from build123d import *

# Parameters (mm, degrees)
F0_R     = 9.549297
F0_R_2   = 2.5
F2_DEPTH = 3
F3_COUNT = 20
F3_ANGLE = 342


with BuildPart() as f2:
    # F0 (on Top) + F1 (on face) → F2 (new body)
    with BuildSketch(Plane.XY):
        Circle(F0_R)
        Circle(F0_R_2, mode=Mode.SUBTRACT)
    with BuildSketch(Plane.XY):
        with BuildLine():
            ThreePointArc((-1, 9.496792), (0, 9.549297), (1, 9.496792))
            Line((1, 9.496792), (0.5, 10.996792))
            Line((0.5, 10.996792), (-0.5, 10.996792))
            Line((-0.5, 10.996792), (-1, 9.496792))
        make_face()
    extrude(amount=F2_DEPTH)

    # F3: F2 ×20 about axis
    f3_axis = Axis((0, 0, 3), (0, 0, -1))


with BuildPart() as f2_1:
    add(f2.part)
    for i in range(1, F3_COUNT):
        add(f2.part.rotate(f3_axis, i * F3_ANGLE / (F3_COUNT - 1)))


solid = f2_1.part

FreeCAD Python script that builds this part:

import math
import FreeCAD as App
import Part
import Sketcher

V = App.Vector
Q = App.Units.Quantity

doc = App.newDocument("Part")
params = doc.addObject("Spreadsheet::Sheet", "Params")
for row, (alias, value) in enumerate([
    ("sketch1_diameter", "5 mm"),
    ("sketch1_width", "1 mm"),
    ("pad1_length", "3 mm"),
], start=1):
    params.set(f"A{row}", alias)
    params.set(f"B{row}", "=" + value)
    params.setAlias(f"B{row}", alias)

body = doc.addObject("PartDesign::Body", "Body")

# Sketch on XY plane
sketch1 = body.newObject("Sketcher::SketchObject", "Sketch")
sketch1.AttachmentSupport = (doc.getObject("XY_Plane"), [""])
sketch1.MapMode = "FlatFace"
sketch1.addGeometry([
    Part.ArcOfCircle(Part.Circle(V(0, 0, 0), V(0, 0, 1), 9.5), math.radians(96), math.radians(444)),  # 0
    Part.LineSegment(V(1, 9.5, 0), V(0.5, 11, 0)),  # 1
    Part.LineSegment(V(0.5, 11, 0), V(-0.5, 11, 0)),  # 2
    Part.LineSegment(V(-0.5, 11, 0), V(-1, 9.5, 0)),  # 3
    Part.Circle(V(0, 0, 0), V(0, 0, 1), 2.5),  # 4
], False)
sketch1.addConstraint([
    Sketcher.Constraint("Coincident", 0, 2, 1, 1),
    Sketcher.Constraint("Coincident", 1, 2, 2, 1),
    Sketcher.Constraint("Coincident", 2, 2, 3, 1),
    Sketcher.Constraint("Coincident", 3, 2, 0, 1),
    Sketcher.Constraint("Horizontal", 2),
    Sketcher.Constraint("Coincident", 0, 3, -1, 1),
    Sketcher.Constraint("Coincident", 4, 3, -1, 1),
    Sketcher.Constraint("Horizontal", 0, 2, 3, 2),
    Sketcher.Constraint("Equal", 1, 3),
    Sketcher.Constraint("Diameter", 4, Q("5 mm")),
    Sketcher.Constraint("DistanceX", 2, 2, 2, 1, Q("1 mm")),
    Sketcher.Constraint("DistanceX", -1, 1, 0, 2, Q("1 mm")),
    Sketcher.Constraint("DistanceY", 0, 2, 1, 2, Q("1.499999 mm")),
    Sketcher.Constraint("Radius", 0, Q("9.549297 mm")),
])
sketch1.setExpression("Constraints[9]", "Params.sketch1_diameter")
sketch1.setExpression("Constraints[10]", "Params.sketch1_width")
pad1 = body.newObject("PartDesign::Pad", "Pad")
pad1.Profile = sketch1
pad1.setExpression("Length", "Params.pad1_length")
body2 = doc.addObject("PartDesign::Body", "Body001")
doc.recompute()

body2.BaseFeature = body
doc.recompute()

body3 = doc.addObject("PartDesign::Body", "Body002")
body3.BaseFeature = body
body3.Placement = App.Placement(V(0, 0, 0), App.Rotation(V(0, 0, -1), 18))
boolean = body2.newObject("PartDesign::Boolean", "Boolean")
boolean.Type = "Fuse"
boolean.addObjects([body3])
doc.recompute()

body4 = doc.addObject("PartDesign::Body", "Body003")
body4.BaseFeature = body
body4.Placement = App.Placement(V(0, 0, 0), App.Rotation(V(0, 0, -1), 36))
boolean2 = body2.newObject("PartDesign::Boolean", "Boolean001")
boolean2.Type = "Fuse"
boolean2.addObjects([body4])
doc.recompute()

body5 = doc.addObject("PartDesign::Body", "Body004")
body5.BaseFeature = body
body5.Placement = App.Placement(V(0, 0, 0), App.Rotation(V(0, 0, -1), 54))
boolean3 = body2.newObject("PartDesign::Boolean", "Boolean002")
boolean3.Type = "Fuse"
boolean3.addObjects([body5])
doc.recompute()

body6 = doc.addObject("PartDesign::Body", "Body005")
body6.BaseFeature = body
body6.Placement = App.Placement(V(0, 0, 0), App.Rotation(V(0, 0, -1), 72))
boolean4 = body2.newObject("PartDesign::Boolean", "Boolean003")
boolean4.Type = "Fuse"
boolean4.addObjects([body6])
doc.recompute()

body7 = doc.addObject("PartDesign::Body", "Body006")
body7.BaseFeature = body
body7.Placement = App.Placement(V(0, 0, 0), App.Rotation(V(0, 0, -1), 90))
boolean5 = body2.newObject("PartDesign::Boolean", "Boolean004")
boolean5.Type = "Fuse"
boolean5.addObjects([body7])
doc.recompute()

body8 = doc.addObject("PartDesign::Body", "Body007")
body8.BaseFeature = body
body8.Placement = App.Placement(V(0, 0, 0), App.Rotation(V(0, 0, -1), 108))
boolean6 = body2.newObject("PartDesign::Boolean", "Boolean005")
boolean6.Type = "Fuse"
boolean6.addObjects([body8])
doc.recompute()

body9 = doc.addObject("PartDesign::Body", "Body008")
body9.BaseFeature = body
body9.Placement = App.Placement(V(0, 0, 0), App.Rotation(V(0, 0, -1), 126))
boolean7 = body2.newObject("PartDesign::Boolean", "Boolean006")
boolean7.Type = "Fuse"
boolean7.addObjects([body9])
doc.recompute()

body10 = doc.addObject("PartDesign::Body", "Body009")
body10.BaseFeature = body
body10.Placement = App.Placement(V(0, 0, 0), App.Rotation(V(0, 0, -1), 144))
boolean8 = body2.newObject("PartDesign::Boolean", "Boolean007")
boolean8.Type = "Fuse"
boolean8.addObjects([body10])
doc.recompute()

body11 = doc.addObject("PartDesign::Body", "Body010")
body11.BaseFeature = body
body11.Placement = App.Placement(V(0, 0, 0), App.Rotation(V(0, 0, -1), 162))
boolean9 = body2.newObject("PartDesign::Boolean", "Boolean008")
boolean9.Type = "Fuse"
boolean9.addObjects([body11])
doc.recompute()

body12 = doc.addObject("PartDesign::Body", "Body011")
body12.BaseFeature = body
body12.Placement = App.Placement(V(0, 0, 0), App.Rotation(V(0, 0, -1), 180))
boolean10 = body2.newObject("PartDesign::Boolean", "Boolean009")
boolean10.Type = "Fuse"
boolean10.addObjects([body12])
doc.recompute()

body13 = doc.addObject("PartDesign::Body", "Body012")
body13.BaseFeature = body
body13.Placement = App.Placement(V(0, 0, 0), App.Rotation(V(0, 0, -1), 198))
boolean11 = body2.newObject("PartDesign::Boolean", "Boolean010")
boolean11.Type = "Fuse"
boolean11.addObjects([body13])
doc.recompute()

body14 = doc.addObject("PartDesign::Body", "Body013")
body14.BaseFeature = body
body14.Placement = App.Placement(V(0, 0, 0), App.Rotation(V(0, 0, -1), 216))
boolean12 = body2.newObject("PartDesign::Boolean", "Boolean011")
boolean12.Type = "Fuse"
boolean12.addObjects([body14])
doc.recompute()

body15 = doc.addObject("PartDesign::Body", "Body014")
body15.BaseFeature = body
body15.Placement = App.Placement(V(0, 0, 0), App.Rotation(V(0, 0, -1), 234))
boolean13 = body2.newObject("PartDesign::Boolean", "Boolean012")
boolean13.Type = "Fuse"
boolean13.addObjects([body15])
doc.recompute()

body16 = doc.addObject("PartDesign::Body", "Body015")
body16.BaseFeature = body
body16.Placement = App.Placement(V(0, 0, 0), App.Rotation(V(0, 0, -1), 252))
boolean14 = body2.newObject("PartDesign::Boolean", "Boolean013")
boolean14.Type = "Fuse"
boolean14.addObjects([body16])
doc.recompute()

body17 = doc.addObject("PartDesign::Body", "Body016")
body17.BaseFeature = body
body17.Placement = App.Placement(V(0, 0, 0), App.Rotation(V(0, 0, -1), 270))
boolean15 = body2.newObject("PartDesign::Boolean", "Boolean014")
boolean15.Type = "Fuse"
boolean15.addObjects([body17])
doc.recompute()

body18 = doc.addObject("PartDesign::Body", "Body017")
body18.BaseFeature = body
body18.Placement = App.Placement(V(0, 0, 0), App.Rotation(V(0, 0, -1), 288))
boolean16 = body2.newObject("PartDesign::Boolean", "Boolean015")
boolean16.Type = "Fuse"
boolean16.addObjects([body18])
doc.recompute()

body19 = doc.addObject("PartDesign::Body", "Body018")
body19.BaseFeature = body
body19.Placement = App.Placement(V(0, 0, 0), App.Rotation(V(0, 0, -1), 306))
boolean17 = body2.newObject("PartDesign::Boolean", "Boolean016")
boolean17.Type = "Fuse"
boolean17.addObjects([body19])
doc.recompute()

body20 = doc.addObject("PartDesign::Body", "Body019")
body20.BaseFeature = body
body20.Placement = App.Placement(V(0, 0, 0), App.Rotation(V(0, 0, -1), 324))
boolean18 = body2.newObject("PartDesign::Boolean", "Boolean017")
boolean18.Type = "Fuse"
boolean18.addObjects([body20])
doc.recompute()

body.Placement = App.Placement(V(0, 0, 0), App.Rotation(V(0, 0, -1), 342))
boolean19 = body2.newObject("PartDesign::Boolean", "Boolean018")
boolean19.Type = "Fuse"
boolean19.addObjects([body])

doc.recompute()
